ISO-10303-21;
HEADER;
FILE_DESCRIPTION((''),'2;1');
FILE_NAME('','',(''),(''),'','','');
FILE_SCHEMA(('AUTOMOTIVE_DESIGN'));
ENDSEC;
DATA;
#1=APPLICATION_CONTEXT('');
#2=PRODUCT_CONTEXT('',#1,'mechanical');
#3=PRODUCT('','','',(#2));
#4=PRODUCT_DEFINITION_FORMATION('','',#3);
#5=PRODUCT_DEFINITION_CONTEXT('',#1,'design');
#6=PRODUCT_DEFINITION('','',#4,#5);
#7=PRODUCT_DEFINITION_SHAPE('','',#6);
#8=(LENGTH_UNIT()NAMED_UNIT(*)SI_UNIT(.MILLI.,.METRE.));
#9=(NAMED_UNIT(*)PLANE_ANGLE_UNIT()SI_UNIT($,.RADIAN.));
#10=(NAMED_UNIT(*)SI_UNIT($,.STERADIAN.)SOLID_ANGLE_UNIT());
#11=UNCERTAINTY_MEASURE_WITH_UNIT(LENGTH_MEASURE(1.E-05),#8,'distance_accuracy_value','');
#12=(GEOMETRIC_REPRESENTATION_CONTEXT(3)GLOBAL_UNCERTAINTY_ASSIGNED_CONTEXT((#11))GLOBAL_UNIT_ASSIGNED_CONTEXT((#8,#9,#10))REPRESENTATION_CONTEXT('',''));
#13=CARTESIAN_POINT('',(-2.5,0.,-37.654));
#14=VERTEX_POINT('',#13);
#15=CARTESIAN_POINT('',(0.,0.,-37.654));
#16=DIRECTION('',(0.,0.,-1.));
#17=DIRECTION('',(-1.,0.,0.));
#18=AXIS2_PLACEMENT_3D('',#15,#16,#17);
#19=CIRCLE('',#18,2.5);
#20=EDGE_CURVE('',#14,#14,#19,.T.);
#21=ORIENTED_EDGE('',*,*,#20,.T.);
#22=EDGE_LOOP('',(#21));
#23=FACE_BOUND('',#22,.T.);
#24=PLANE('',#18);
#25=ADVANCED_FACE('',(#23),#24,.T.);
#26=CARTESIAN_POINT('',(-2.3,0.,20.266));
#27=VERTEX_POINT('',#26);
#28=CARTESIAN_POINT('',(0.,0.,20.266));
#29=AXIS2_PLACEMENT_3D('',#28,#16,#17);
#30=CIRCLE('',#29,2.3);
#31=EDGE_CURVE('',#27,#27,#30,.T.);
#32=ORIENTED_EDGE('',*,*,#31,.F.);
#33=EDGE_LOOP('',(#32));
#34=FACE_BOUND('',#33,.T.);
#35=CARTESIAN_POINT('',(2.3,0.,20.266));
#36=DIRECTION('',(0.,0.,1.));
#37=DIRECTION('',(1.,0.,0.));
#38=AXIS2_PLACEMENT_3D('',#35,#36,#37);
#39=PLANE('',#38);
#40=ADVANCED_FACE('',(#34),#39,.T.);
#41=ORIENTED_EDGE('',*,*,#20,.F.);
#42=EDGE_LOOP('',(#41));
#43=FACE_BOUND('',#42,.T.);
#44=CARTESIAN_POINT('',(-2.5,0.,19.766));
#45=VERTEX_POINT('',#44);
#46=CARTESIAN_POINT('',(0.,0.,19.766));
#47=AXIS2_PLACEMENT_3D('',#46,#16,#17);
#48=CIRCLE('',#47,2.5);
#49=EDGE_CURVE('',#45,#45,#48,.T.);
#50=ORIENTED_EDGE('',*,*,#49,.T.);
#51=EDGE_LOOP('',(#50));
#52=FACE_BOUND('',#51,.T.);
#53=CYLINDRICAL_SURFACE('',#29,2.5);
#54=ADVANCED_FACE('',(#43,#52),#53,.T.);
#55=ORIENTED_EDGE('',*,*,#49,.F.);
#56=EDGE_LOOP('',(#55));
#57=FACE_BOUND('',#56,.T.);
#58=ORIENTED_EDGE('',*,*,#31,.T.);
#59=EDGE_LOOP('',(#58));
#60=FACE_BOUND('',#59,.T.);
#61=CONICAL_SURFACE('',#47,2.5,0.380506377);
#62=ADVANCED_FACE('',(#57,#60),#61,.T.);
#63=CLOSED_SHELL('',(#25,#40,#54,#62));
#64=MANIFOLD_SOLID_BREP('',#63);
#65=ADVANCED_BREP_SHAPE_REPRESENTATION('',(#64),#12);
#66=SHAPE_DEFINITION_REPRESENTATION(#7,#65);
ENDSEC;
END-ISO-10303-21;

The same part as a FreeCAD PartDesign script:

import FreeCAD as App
import Part
import Sketcher

V = App.Vector
Q = App.Units.Quantity


def add_polygon(sketch, points):
    """Adds a closed chain of lines whose ends are joined by coincident constraints."""
    first, n = sketch.GeometryCount, len(points)
    for a, b in zip(points, points[1:] + points[:1]):
        sketch.addGeometry(Part.LineSegment(App.Vector(*a, 0), App.Vector(*b, 0)), False)
    for i in range(n):
        sketch.addConstraint(Sketcher.Constraint("Coincident", first + i, 2, first + (i + 1) % n, 1))

doc = App.newDocument("Part")
params = doc.addObject("Spreadsheet::Sheet", "Params")
for row, (alias, value) in enumerate([
    ("sketch1_width", "2.3 mm"),
    ("sketch1_width2", "2.5 mm"),
    ("sketch1_height", "57.92 mm"),
    ("sketch1_height2", "57.42 mm"),
    ("revolution_angle", "360 deg"),
], start=1):
    params.set(f"A{row}", alias)
    params.set(f"B{row}", "=" + value)
    params.setAlias(f"B{row}", alias)

body = doc.addObject("PartDesign::Body", "Body")

sketch1 = body.newObject("Sketcher::SketchObject", "Sketch")
sketch1.AttachmentSupport = (doc.getObject("XZ_Plane"), [""])
sketch1.MapMode = "FlatFace"
add_polygon(sketch1, [(2.3, 20.3), (0, 20.3), (0, -37.7), (2.5, -37.7), (2.5, 19.8)])
sketch1.addConstraint([
    Sketcher.Constraint("Horizontal", 0),
    Sketcher.Constraint("Vertical", 1),
    Sketcher.Constraint("Horizontal", 2),
    Sketcher.Constraint("Vertical", 3),
    Sketcher.Constraint("PointOnObject", 0, 2, -2),
    Sketcher.Constraint("DistanceX", 0, 2, 0, 1, Q("2.3 mm")),
    Sketcher.Constraint("DistanceX", 2, 1, 2, 2, Q("2.5 mm")),
    Sketcher.Constraint("DistanceY", 1, 2, 1, 1, Q("57.92 mm")),
    Sketcher.Constraint("DistanceY", 3, 1, 3, 2, Q("57.42 mm")),
    Sketcher.Constraint("DistanceY", -1, 1, 0, 2, Q("20.266 mm")),
])
sketch1.setExpression("Constraints[10]", "Params.sketch1_width")
sketch1.setExpression("Constraints[11]", "Params.sketch1_width2")
sketch1.setExpression("Constraints[12]", "Params.sketch1_height")
sketch1.setExpression("Constraints[13]", "Params.sketch1_height2")
revolution = body.newObject("PartDesign::Revolution", "Revolution")
revolution.Profile = sketch1
revolution.ReferenceAxis = (sketch1, ["V_Axis"])
revolution.setExpression("Angle", "Params.revolution_angle")

doc.recompute()
